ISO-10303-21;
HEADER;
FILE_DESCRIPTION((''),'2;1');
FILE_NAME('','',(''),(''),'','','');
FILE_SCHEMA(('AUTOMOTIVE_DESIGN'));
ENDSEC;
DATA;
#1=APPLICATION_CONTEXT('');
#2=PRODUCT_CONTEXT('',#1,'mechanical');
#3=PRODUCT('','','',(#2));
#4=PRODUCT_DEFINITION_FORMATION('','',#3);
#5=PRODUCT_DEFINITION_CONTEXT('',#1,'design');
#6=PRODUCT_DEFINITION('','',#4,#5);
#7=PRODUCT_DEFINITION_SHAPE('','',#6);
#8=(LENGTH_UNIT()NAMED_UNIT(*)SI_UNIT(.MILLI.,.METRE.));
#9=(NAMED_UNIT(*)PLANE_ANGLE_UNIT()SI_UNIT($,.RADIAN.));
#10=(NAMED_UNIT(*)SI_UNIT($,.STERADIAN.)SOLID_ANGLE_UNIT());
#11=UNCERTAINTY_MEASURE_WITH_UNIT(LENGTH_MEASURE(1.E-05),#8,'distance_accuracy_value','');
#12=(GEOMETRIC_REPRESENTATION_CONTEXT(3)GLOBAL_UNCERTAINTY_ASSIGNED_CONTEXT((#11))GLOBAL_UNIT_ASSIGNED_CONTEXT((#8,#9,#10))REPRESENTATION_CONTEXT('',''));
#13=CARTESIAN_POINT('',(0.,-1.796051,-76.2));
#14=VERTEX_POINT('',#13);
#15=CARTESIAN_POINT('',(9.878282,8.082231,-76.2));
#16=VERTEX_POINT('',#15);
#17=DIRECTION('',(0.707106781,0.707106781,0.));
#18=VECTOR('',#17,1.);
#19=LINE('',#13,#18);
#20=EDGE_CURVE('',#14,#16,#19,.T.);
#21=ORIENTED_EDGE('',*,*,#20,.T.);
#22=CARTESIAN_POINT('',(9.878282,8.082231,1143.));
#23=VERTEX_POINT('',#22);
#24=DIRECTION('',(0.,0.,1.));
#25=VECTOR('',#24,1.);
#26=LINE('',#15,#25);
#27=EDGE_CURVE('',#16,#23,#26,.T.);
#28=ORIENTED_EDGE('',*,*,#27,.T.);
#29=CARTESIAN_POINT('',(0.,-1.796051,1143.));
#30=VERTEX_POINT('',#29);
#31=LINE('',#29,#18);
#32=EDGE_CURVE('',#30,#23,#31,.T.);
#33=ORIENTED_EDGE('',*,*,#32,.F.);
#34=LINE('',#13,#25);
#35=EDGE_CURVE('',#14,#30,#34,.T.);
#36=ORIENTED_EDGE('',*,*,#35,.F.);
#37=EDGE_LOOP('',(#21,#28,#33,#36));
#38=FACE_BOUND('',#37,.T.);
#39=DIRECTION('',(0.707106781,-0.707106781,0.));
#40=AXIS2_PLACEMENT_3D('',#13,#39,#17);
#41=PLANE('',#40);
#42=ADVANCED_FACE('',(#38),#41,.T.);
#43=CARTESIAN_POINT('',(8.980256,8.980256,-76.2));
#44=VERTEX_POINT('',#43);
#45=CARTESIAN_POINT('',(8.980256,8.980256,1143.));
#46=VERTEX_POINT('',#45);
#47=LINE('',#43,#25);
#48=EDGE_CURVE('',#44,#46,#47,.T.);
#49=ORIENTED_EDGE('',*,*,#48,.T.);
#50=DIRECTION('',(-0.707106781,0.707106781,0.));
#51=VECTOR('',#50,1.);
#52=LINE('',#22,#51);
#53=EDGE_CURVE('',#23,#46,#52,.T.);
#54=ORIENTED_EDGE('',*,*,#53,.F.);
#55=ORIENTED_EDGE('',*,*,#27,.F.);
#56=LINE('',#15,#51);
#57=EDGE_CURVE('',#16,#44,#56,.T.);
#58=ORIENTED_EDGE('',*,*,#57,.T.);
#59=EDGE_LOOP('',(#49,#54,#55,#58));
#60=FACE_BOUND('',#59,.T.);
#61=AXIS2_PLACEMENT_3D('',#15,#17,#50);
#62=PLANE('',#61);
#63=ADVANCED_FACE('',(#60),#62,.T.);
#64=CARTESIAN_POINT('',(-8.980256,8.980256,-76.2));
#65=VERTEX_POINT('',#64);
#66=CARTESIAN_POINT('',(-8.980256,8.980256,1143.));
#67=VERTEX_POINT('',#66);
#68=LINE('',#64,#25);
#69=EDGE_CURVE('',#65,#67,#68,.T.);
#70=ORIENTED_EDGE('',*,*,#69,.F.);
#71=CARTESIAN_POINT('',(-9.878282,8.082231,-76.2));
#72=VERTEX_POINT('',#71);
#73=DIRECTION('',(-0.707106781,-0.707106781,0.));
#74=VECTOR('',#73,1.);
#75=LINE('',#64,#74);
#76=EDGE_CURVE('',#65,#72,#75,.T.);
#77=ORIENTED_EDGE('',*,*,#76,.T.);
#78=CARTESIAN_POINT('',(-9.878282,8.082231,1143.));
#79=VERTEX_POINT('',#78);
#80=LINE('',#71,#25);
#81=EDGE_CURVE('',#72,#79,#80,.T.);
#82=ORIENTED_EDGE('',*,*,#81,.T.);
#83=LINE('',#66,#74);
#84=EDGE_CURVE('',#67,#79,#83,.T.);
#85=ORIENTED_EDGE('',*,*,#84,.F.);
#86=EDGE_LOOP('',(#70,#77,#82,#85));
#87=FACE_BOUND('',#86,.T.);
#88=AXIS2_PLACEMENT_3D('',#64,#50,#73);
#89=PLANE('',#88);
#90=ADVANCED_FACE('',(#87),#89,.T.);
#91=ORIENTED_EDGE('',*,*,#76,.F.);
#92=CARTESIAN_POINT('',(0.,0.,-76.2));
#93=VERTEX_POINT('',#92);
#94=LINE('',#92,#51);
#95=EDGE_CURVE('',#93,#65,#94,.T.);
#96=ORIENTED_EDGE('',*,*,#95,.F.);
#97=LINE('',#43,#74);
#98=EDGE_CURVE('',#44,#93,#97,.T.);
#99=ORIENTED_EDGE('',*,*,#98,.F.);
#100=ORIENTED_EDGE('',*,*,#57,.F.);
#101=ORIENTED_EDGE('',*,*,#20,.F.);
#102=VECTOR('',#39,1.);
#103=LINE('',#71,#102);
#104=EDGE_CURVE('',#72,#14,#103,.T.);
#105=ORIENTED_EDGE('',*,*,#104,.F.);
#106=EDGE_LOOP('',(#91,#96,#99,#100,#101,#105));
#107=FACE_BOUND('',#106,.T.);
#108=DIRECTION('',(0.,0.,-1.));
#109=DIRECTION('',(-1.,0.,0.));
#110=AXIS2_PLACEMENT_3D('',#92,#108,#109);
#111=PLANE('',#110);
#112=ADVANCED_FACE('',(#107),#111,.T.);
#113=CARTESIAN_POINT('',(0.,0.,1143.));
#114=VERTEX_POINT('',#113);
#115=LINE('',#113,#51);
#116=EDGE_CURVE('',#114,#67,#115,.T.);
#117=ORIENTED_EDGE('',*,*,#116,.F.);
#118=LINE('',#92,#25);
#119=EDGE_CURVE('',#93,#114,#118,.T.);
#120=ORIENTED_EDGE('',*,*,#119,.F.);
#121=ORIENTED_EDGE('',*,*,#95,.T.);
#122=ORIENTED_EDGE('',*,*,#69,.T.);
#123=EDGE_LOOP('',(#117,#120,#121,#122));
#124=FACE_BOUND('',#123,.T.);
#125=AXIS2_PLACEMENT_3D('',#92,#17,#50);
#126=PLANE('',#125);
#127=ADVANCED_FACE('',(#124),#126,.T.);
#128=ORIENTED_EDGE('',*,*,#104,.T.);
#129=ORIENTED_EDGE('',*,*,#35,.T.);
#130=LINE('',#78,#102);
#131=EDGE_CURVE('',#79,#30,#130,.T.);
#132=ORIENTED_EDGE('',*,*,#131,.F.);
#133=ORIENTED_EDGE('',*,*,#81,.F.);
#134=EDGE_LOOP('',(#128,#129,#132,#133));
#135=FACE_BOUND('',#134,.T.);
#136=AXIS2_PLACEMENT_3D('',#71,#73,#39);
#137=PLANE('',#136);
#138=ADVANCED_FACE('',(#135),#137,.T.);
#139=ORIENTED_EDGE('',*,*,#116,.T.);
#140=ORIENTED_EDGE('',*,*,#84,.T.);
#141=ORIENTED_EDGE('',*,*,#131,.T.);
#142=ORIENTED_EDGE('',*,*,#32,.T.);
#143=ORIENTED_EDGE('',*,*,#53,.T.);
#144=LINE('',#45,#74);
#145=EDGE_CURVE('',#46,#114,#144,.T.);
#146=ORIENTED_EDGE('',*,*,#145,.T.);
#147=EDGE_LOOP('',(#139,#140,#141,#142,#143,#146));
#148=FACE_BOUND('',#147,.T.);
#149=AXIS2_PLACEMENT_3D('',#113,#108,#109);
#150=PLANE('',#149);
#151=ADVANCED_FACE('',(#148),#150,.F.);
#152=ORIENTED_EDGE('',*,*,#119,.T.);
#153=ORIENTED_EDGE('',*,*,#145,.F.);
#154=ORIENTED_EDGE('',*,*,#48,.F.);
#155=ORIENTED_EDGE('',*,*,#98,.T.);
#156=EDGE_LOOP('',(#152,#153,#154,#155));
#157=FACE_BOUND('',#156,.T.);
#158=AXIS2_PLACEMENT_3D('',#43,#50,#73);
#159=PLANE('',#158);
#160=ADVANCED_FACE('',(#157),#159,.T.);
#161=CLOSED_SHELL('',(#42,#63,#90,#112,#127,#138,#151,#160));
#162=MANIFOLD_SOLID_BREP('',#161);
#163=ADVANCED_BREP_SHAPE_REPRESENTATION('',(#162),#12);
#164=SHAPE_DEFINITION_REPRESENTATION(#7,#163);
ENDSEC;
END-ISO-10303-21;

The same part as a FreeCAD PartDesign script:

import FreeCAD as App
import Part
import Sketcher
Q = App.Units.Quantity


def add_polygon(sketch, points):
    """Adds a closed chain of lines whose ends are joined by coincident constraints."""
    first, n = sketch.GeometryCount, len(points)
    for a, b in zip(points, points[1:] + points[:1]):
        sketch.addGeometry(Part.LineSegment(App.Vector(*a, 0), App.Vector(*b, 0)), False)
    for i in range(n):
        sketch.addConstraint(Sketcher.Constraint("Coincident", first + i, 2, first + (i + 1) % n, 1))

doc = App.newDocument("Part")
body = doc.addObject("PartDesign::Body", "Body")

# Sketch on XY plane
sketch1 = doc.addObject("Sketcher::SketchObject", "Sketch")
body.addObject(sketch1)
sketch1.AttachmentSupport = (doc.XY_Plane, [""])
sketch1.MapMode = "FlatFace"
add_polygon(sketch1, [(0, 0), (-9, 9), (-9.9, 8.1), (0, -1.8), (9.9, 8.1), (9, 9)])  # lines 0-5
sketch1.addConstraint([
    Sketcher.Constraint("Coincident", 5, 2, -1, 1),
    Sketcher.Constraint("Symmetric", 1, 2, 3, 2, -2),
    Sketcher.Constraint("Symmetric", 0, 2, 4, 2, -2),
    Sketcher.Constraint("PointOnObject", 2, 2, -2),
    Sketcher.Constraint("Perpendicular", 0, 1),
    Sketcher.Constraint("Perpendicular", 1, 2),
    Sketcher.Constraint("Perpendicular", 2, 3),
    Sketcher.Constraint("Distance", 0, Q("0.5 in")),
    Sketcher.Constraint("Distance", 1, Q("0.05 in")),
])
pad1 = doc.addObject("PartDesign::Pad", "Pad")
body.addObject(pad1)
pad1.Profile = sketch1
pad1.Type = "TwoLengths"
pad1.Length = Q("45 in")
pad1.Length2 = Q("3 in")

doc.recompute()
